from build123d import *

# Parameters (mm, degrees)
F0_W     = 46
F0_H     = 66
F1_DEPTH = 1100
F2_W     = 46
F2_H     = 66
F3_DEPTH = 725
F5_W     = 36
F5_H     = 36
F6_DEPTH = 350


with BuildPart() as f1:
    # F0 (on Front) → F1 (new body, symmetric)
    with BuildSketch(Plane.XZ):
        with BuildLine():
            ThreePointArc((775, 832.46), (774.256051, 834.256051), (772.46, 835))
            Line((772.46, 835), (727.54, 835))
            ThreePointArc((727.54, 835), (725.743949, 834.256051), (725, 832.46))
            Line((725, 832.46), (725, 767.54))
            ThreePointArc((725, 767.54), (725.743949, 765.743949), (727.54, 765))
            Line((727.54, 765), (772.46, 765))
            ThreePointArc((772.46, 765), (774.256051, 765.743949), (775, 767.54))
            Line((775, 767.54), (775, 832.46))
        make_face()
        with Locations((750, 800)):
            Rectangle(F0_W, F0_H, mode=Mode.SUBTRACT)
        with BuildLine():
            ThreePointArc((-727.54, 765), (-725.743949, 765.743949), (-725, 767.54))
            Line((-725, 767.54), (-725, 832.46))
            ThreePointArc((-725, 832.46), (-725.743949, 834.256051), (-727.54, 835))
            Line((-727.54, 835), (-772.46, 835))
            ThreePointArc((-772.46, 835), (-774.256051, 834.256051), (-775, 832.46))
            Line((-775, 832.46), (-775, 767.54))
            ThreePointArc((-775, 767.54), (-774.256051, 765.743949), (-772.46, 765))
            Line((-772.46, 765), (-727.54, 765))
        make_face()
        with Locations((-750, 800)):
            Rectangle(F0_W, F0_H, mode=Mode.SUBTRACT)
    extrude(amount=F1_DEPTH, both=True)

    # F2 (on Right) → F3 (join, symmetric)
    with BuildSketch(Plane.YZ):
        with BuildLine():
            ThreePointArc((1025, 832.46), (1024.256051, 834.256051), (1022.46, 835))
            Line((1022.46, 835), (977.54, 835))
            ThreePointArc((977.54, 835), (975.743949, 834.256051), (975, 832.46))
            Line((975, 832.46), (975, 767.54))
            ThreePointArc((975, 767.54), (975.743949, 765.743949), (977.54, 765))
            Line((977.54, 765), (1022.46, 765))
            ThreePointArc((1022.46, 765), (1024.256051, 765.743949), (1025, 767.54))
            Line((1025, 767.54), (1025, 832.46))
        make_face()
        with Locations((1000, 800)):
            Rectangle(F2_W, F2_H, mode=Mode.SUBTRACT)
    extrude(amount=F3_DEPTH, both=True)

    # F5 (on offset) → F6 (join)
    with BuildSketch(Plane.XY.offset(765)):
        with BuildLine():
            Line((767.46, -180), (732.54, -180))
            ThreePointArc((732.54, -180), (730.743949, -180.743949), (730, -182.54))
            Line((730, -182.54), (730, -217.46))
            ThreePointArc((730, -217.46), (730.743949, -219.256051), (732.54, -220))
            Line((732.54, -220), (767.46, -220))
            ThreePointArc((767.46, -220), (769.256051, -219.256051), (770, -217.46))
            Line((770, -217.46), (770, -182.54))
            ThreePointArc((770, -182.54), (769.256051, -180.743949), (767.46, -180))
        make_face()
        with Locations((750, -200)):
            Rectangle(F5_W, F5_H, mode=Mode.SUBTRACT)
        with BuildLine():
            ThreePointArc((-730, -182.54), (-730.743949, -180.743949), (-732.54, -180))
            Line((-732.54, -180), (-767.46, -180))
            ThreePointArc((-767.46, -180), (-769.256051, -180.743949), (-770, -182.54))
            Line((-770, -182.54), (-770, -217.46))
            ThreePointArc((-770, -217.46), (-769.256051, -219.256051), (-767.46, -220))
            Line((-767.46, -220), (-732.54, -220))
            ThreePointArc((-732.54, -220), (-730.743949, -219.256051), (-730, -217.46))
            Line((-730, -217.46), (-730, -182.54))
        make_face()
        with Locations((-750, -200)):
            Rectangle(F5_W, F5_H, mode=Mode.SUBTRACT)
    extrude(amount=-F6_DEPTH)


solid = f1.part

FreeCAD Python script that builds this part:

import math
import FreeCAD as App
import Part
import Sketcher
from FreeCAD import Vector

doc = App.newDocument("Part")
body = doc.addObject("PartDesign::Body", "Body")
body.AllowCompound = True

# Sketch on XZ plane
sketch1 = doc.addObject("Sketcher::SketchObject", "Sketch")
body.addObject(sketch1)
sketch1.AttachmentSupport = (doc.XZ_Plane, [""])
sketch1.MapMode = "FlatFace"
sketch1.addGeometry([
    Part.ArcOfCircle(Part.Circle(Vector(772.5, 832.5, 0), Vector(0, 0, 1), 2.5), math.radians(0), math.radians(90)),  # 0
    Part.LineSegment(Vector(772.5, 835, 0), Vector(727.5, 835, 0)),  # 1
    Part.ArcOfCircle(Part.Circle(Vector(727.5, 832.5, 0), Vector(0, 0, 1), 2.5), math.radians(90), math.radians(180)),  # 2
    Part.LineSegment(Vector(725, 832.5, 0), Vector(725, 767.5, 0)),  # 3
    Part.ArcOfCircle(Part.Circle(Vector(727.5, 767.5, 0), Vector(0, 0, 1), 2.5), math.radians(-180), math.radians(-90)),  # 4
    Part.LineSegment(Vector(727.5, 765, 0), Vector(772.5, 765, 0)),  # 5
    Part.ArcOfCircle(Part.Circle(Vector(772.5, 767.5, 0), Vector(0, 0, 1), 2.5), math.radians(-90), math.radians(0)),  # 6
    Part.LineSegment(Vector(775, 767.5, 0), Vector(775, 832.5, 0)),  # 7
    Part.LineSegment(Vector(773, 767, 0), Vector(727, 767, 0)),  # 8
    Part.LineSegment(Vector(727, 767, 0), Vector(727, 833, 0)),  # 9
    Part.LineSegment(Vector(727, 833, 0), Vector(773, 833, 0)),  # 10
    Part.LineSegment(Vector(773, 833, 0), Vector(773, 767, 0)),  # 11
    Part.ArcOfCircle(Part.Circle(Vector(-727.5, 767.5, 0), Vector(0, 0, 1), 2.5), math.radians(-90), math.radians(0)),  # 12
    Part.LineSegment(Vector(-725, 767.5, 0), Vector(-725, 832.5, 0)),  # 13
    Part.ArcOfCircle(Part.Circle(Vector(-727.5, 832.5, 0), Vector(0, 0, 1), 2.5), math.radians(0), math.radians(90)),  # 14
    Part.LineSegment(Vector(-727.5, 835, 0), Vector(-772.5, 835, 0)),  # 15
    Part.ArcOfCircle(Part.Circle(Vector(-772.5, 832.5, 0), Vector(0, 0, 1), 2.5), math.radians(90), math.radians(180)),  # 16
    Part.LineSegment(Vector(-775, 832.5, 0), Vector(-775, 767.5, 0)),  # 17
    Part.ArcOfCircle(Part.Circle(Vector(-772.5, 767.5, 0), Vector(0, 0, 1), 2.5), math.radians(-180), math.radians(-90)),  # 18
    Part.LineSegment(Vector(-772.5, 765, 0), Vector(-727.5, 765, 0)),  # 19
    Part.LineSegment(Vector(-727, 767, 0), Vector(-773, 767, 0)),  # 20
    Part.LineSegment(Vector(-773, 767, 0), Vector(-773, 833, 0)),  # 21
    Part.LineSegment(Vector(-773, 833, 0), Vector(-727, 833, 0)),  # 22
    Part.LineSegment(Vector(-727, 833, 0), Vector(-727, 767, 0)),  # 23
], False)
sketch1.addConstraint([
    Sketcher.Constraint("Tangent", 0, 2, 1, 1),
    Sketcher.Constraint("Tangent", 1, 2, 2, 1),
    Sketcher.Constraint("Tangent", 2, 2, 3, 1),
    Sketcher.Constraint("Tangent", 3, 2, 4, 1),
    Sketcher.Constraint("Tangent", 4, 2, 5, 1),
    Sketcher.Constraint("Tangent", 5, 2, 6, 1),
    Sketcher.Constraint("Tangent", 6, 2, 7, 1),
    Sketcher.Constraint("Tangent", 7, 2, 0, 1),
    Sketcher.Constraint("Coincident", 8, 2, 9, 1),
    Sketcher.Constraint("Coincident", 9, 2, 10, 1),
    Sketcher.Constraint("Coincident", 10, 2, 11, 1),
    Sketcher.Constraint("Coincident", 11, 2, 8, 1),
    Sketcher.Constraint("Tangent", 12, 2, 13, 1),
    Sketcher.Constraint("Tangent", 13, 2, 14, 1),
    Sketcher.Constraint("Tangent", 14, 2, 15, 1),
    Sketcher.Constraint("Tangent", 15, 2, 16, 1),
    Sketcher.Constraint("Tangent", 16, 2, 17, 1),
    Sketcher.Constraint("Tangent", 17, 2, 18, 1),
    Sketcher.Constraint("Tangent", 18, 2, 19, 1),
    Sketcher.Constraint("Tangent", 19, 2, 12, 1),
    Sketcher.Constraint("Coincident", 20, 2, 21, 1),
    Sketcher.Constraint("Coincident", 21, 2, 22, 1),
    Sketcher.Constraint("Coincident", 22, 2, 23, 1),
    Sketcher.Constraint("Coincident", 23, 2, 20, 1),
    Sketcher.Constraint("Horizontal", 1),
    Sketcher.Constraint("Vertical", 3),
    Sketcher.Constraint("Horizontal", 5),
    Sketcher.Constraint("Vertical", 7),
    Sketcher.Constraint("Horizontal", 8),
    Sketcher.Constraint("Vertical", 9),
    Sketcher.Constraint("Horizontal", 10),
    Sketcher.Constraint("Vertical", 11),
    Sketcher.Constraint("Vertical", 13),
    Sketcher.Constraint("Horizontal", 15),
    Sketcher.Constraint("Vertical", 17),
    Sketcher.Constraint("Horizontal", 19),
    Sketcher.Constraint("Horizontal", 20),
    Sketcher.Constraint("Vertical", 21),
    Sketcher.Constraint("Horizontal", 22),
    Sketcher.Constraint("Vertical", 23),
    Sketcher.Constraint("Equal", 0, 2),
    Sketcher.Constraint("Equal", 2, 4),
    Sketcher.Constraint("Equal", 4, 6),
    Sketcher.Constraint("Equal", 6, 12),
    Sketcher.Constraint("Equal", 12, 14),
    Sketcher.Constraint("Equal", 14, 16),
    Sketcher.Constraint("Equal", 16, 18),
    Sketcher.Constraint("Symmetric", 4, 3, 12, 3, -2),
    Sketcher.Constraint("Symmetric", 0, 3, 16, 3, -2),
    Sketcher.Constraint("Symmetric", 11, 2, 20, 2, -2),
    Sketcher.Constraint("Symmetric", 9, 2, 22, 2, -2),
    Sketcher.Constraint("DistanceX", 8, 2, 8, 1, 46.0),
    Sketcher.Constraint("DistanceY", 9, 1, 9, 2, 66.0),
    Sketcher.Constraint("Radius", 0, 2.540001),
    Sketcher.Constraint("DistanceY", -1, 1, 0, 2, 835.0),
    Sketcher.Constraint("DistanceX", -1, 1, 2, 2, 725.0),
    Sketcher.Constraint("DistanceY", -1, 1, 4, 2, 765.0),
    Sketcher.Constraint("DistanceX", -1, 1, 6, 2, 775.0),
    Sketcher.Constraint("DistanceX", -1, 1, 8, 2, 727.0),
    Sketcher.Constraint("DistanceY", -1, 1, 8, 2, 767.0),
])
pad1 = doc.addObject("PartDesign::Pad", "Pad")
body.addObject(pad1)
pad1.Profile = sketch1
pad1.Length = 2200
pad1.Midplane = True

# Sketch on YZ plane
sketch2 = doc.addObject("Sketcher::SketchObject", "Sketch001")
body.addObject(sketch2)
sketch2.AttachmentSupport = (doc.YZ_Plane, [""])
sketch2.MapMode = "FlatFace"
sketch2.addGeometry([
    Part.ArcOfCircle(Part.Circle(Vector(1022.5, 832.5, 0), Vector(0, 0, 1), 2.5), math.radians(0), math.radians(90)),  # 0
    Part.LineSegment(Vector(1022.5, 835, 0), Vector(977.5, 835, 0)),  # 1
    Part.ArcOfCircle(Part.Circle(Vector(977.5, 832.5, 0), Vector(0, 0, 1), 2.5), math.radians(90), math.radians(180)),  # 2
    Part.LineSegment(Vector(975, 832.5, 0), Vector(975, 767.5, 0)),  # 3
    Part.ArcOfCircle(Part.Circle(Vector(977.5, 767.5, 0), Vector(0, 0, 1), 2.5), math.radians(-180), math.radians(-90)),  # 4
    Part.LineSegment(Vector(977.5, 765, 0), Vector(1022.5, 765, 0)),  # 5
    Part.ArcOfCircle(Part.Circle(Vector(1022.5, 767.5, 0), Vector(0, 0, 1), 2.5), math.radians(-90), math.radians(0)),  # 6
    Part.LineSegment(Vector(1025, 767.5, 0), Vector(1025, 832.5, 0)),  # 7
    Part.LineSegment(Vector(1023, 767, 0), Vector(977, 767, 0)),  # 8
    Part.LineSegment(Vector(977, 767, 0), Vector(977, 833, 0)),  # 9
    Part.LineSegment(Vector(977, 833, 0), Vector(1023, 833, 0)),  # 10
    Part.LineSegment(Vector(1023, 833, 0), Vector(1023, 767, 0)),  # 11
], False)
sketch2.addConstraint([
    Sketcher.Constraint("Tangent", 0, 2, 1, 1),
    Sketcher.Constraint("Tangent", 1, 2, 2, 1),
    Sketcher.Constraint("Tangent", 2, 2, 3, 1),
    Sketcher.Constraint("Tangent", 3, 2, 4, 1),
    Sketcher.Constraint("Tangent", 4, 2, 5, 1),
    Sketcher.Constraint("Tangent", 5, 2, 6, 1),
    Sketcher.Constraint("Tangent", 6, 2, 7, 1),
    Sketcher.Constraint("Tangent", 7, 2, 0, 1),
    Sketcher.Constraint("Coincident", 8, 2, 9, 1),
    Sketcher.Constraint("Coincident", 9, 2, 10, 1),
    Sketcher.Constraint("Coincident", 10, 2, 11, 1),
    Sketcher.Constraint("Coincident", 11, 2, 8, 1),
    Sketcher.Constraint("Horizontal", 1),
    Sketcher.Constraint("Vertical", 3),
    Sketcher.Constraint("Horizontal", 5),
    Sketcher.Constraint("Vertical", 7),
    Sketcher.Constraint("Horizontal", 8),
    Sketcher.Constraint("Vertical", 9),
    Sketcher.Constraint("Horizontal", 10),
    Sketcher.Constraint("Vertical", 11),
    Sketcher.Constraint("Equal", 0, 2),
    Sketcher.Constraint("Equal", 2, 4),
    Sketcher.Constraint("Equal", 4, 6),
    Sketcher.Constraint("DistanceX", 8, 2, 8, 1, 46.0),
    Sketcher.Constraint("DistanceY", 9, 1, 9, 2, 66.0),
    Sketcher.Constraint("Radius", 0, 2.540001),
    Sketcher.Constraint("DistanceY", -1, 1, 0, 2, 835.0),
    Sketcher.Constraint("DistanceX", -1, 1, 2, 2, 975.0),
    Sketcher.Constraint("DistanceY", -1, 1, 4, 2, 765.0),
    Sketcher.Constraint("DistanceX", -1, 1, 6, 2, 1025.0),
    Sketcher.Constraint("DistanceX", -1, 1, 8, 2, 977.0),
    Sketcher.Constraint("DistanceY", -1, 1, 8, 2, 767.0),
])
pad2 = doc.addObject("PartDesign::Pad", "Pad001")
body.addObject(pad2)
pad2.Profile = sketch2
pad2.Length = 1450
pad2.Midplane = True

# Sketch on XY plane
sketch3 = doc.addObject("Sketcher::SketchObject", "Sketch002")
body.addObject(sketch3)
sketch3.AttachmentSupport = (doc.XY_Plane, [""])
sketch3.MapMode = "FlatFace"
sketch3.AttachmentOffset = App.Placement(Vector(0, 0, 765), App.Rotation())
sketch3.addGeometry([
    Part.LineSegment(Vector(767.5, -180, 0), Vector(732.5, -180, 0)),  # 0
    Part.ArcOfCircle(Part.Circle(Vector(732.5, -182.5, 0), Vector(0, 0, 1), 2.5), math.radians(90), math.radians(180)),  # 1
    Part.LineSegment(Vector(730, -182.5, 0), Vector(730, -217.5, 0)),  # 2
    Part.ArcOfCircle(Part.Circle(Vector(732.5, -217.5, 0), Vector(0, 0, 1), 2.5), math.radians(-180), math.radians(-90)),  # 3
    Part.LineSegment(Vector(732.5, -220, 0), Vector(767.5, -220, 0)),  # 4
    Part.ArcOfCircle(Part.Circle(Vector(767.5, -217.5, 0), Vector(0, 0, 1), 2.5), math.radians(-90), math.radians(0)),  # 5
    Part.LineSegment(Vector(770, -217.5, 0), Vector(770, -182.5, 0)),  # 6
    Part.ArcOfCircle(Part.Circle(Vector(767.5, -182.5, 0), Vector(0, 0, 1), 2.5), math.radians(0), math.radians(90)),  # 7
    Part.LineSegment(Vector(768, -218, 0), Vector(732, -218, 0)),  # 8
    Part.LineSegment(Vector(732, -218, 0), Vector(732, -182, 0)),  # 9
    Part.LineSegment(Vector(732, -182, 0), Vector(768, -182, 0)),  # 10
    Part.LineSegment(Vector(768, -182, 0), Vector(768, -218, 0)),  # 11
    Part.ArcOfCircle(Part.Circle(Vector(-732.5, -182.5, 0), Vector(0, 0, 1), 2.5), math.radians(0), math.radians(90)),  # 12
    Part.LineSegment(Vector(-732.5, -180, 0), Vector(-767.5, -180, 0)),  # 13
    Part.ArcOfCircle(Part.Circle(Vector(-767.5, -182.5, 0), Vector(0, 0, 1), 2.5), math.radians(90), math.radians(180)),  # 14
    Part.LineSegment(Vector(-770, -182.5, 0), Vector(-770, -217.5, 0)),  # 15
    Part.ArcOfCircle(Part.Circle(Vector(-767.5, -217.5, 0), Vector(0, 0, 1), 2.5), math.radians(-180), math.radians(-90)),  # 16
    Part.LineSegment(Vector(-767.5, -220, 0), Vector(-732.5, -220, 0)),  # 17
    Part.ArcOfCircle(Part.Circle(Vector(-732.5, -217.5, 0), Vector(0, 0, 1), 2.5), math.radians(-90), math.radians(0)),  # 18
    Part.LineSegment(Vector(-730, -217.5, 0), Vector(-730, -182.5, 0)),  # 19
    Part.LineSegment(Vector(-732, -218, 0), Vector(-768, -218, 0)),  # 20
    Part.LineSegment(Vector(-768, -218, 0), Vector(-768, -182, 0)),  # 21
    Part.LineSegment(Vector(-768, -182, 0), Vector(-732, -182, 0)),  # 22
    Part.LineSegment(Vector(-732, -182, 0), Vector(-732, -218, 0)),  # 23
], False)
sketch3.addConstraint([
    Sketcher.Constraint("Tangent", 0, 2, 1, 1),
    Sketcher.Constraint("Tangent", 1, 2, 2, 1),
    Sketcher.Constraint("Tangent", 2, 2, 3, 1),
    Sketcher.Constraint("Tangent", 3, 2, 4, 1),
    Sketcher.Constraint("Tangent", 4, 2, 5, 1),
    Sketcher.Constraint("Tangent", 5, 2, 6, 1),
    Sketcher.Constraint("Tangent", 6, 2, 7, 1),
    Sketcher.Constraint("Tangent", 7, 2, 0, 1),
    Sketcher.Constraint("Coincident", 8, 2, 9, 1),
    Sketcher.Constraint("Coincident", 9, 2, 10, 1),
    Sketcher.Constraint("Coincident", 10, 2, 11, 1),
    Sketcher.Constraint("Coincident", 11, 2, 8, 1),
    Sketcher.Constraint("Tangent", 12, 2, 13, 1),
    Sketcher.Constraint("Tangent", 13, 2, 14, 1),
    Sketcher.Constraint("Tangent", 14, 2, 15, 1),
    Sketcher.Constraint("Tangent", 15, 2, 16, 1),
    Sketcher.Constraint("Tangent", 16, 2, 17, 1),
    Sketcher.Constraint("Tangent", 17, 2, 18, 1),
    Sketcher.Constraint("Tangent", 18, 2, 19, 1),
    Sketcher.Constraint("Tangent", 19, 2, 12, 1),
    Sketcher.Constraint("Coincident", 20, 2, 21, 1),
    Sketcher.Constraint("Coincident", 21, 2, 22, 1),
    Sketcher.Constraint("Coincident", 22, 2, 23, 1),
    Sketcher.Constraint("Coincident", 23, 2, 20, 1),
    Sketcher.Constraint("Horizontal", 0),
    Sketcher.Constraint("Vertical", 2),
    Sketcher.Constraint("Horizontal", 4),
    Sketcher.Constraint("Vertical", 6),
    Sketcher.Constraint("Horizontal", 8),
    Sketcher.Constraint("Vertical", 9),
    Sketcher.Constraint("Horizontal", 10),
    Sketcher.Constraint("Vertical", 11),
    Sketcher.Constraint("Horizontal", 13),
    Sketcher.Constraint("Vertical", 15),
    Sketcher.Constraint("Horizontal", 17),
    Sketcher.Constraint("Vertical", 19),
    Sketcher.Constraint("Horizontal", 20),
    Sketcher.Constraint("Vertical", 21),
    Sketcher.Constraint("Horizontal", 22),
    Sketcher.Constraint("Vertical", 23),
    Sketcher.Constraint("Equal", 1, 3),
    Sketcher.Constraint("Equal", 3, 5),
    Sketcher.Constraint("Equal", 5, 7),
    Sketcher.Constraint("Equal", 7, 12),
    Sketcher.Constraint("Equal", 12, 14),
    Sketcher.Constraint("Equal", 14, 16),
    Sketcher.Constraint("Equal", 16, 18),
    Sketcher.Constraint("Symmetric", 1, 3, 12, 3, -2),
    Sketcher.Constraint("Symmetric", 5, 3, 16, 3, -2),
    Sketcher.Constraint("Symmetric", 11, 2, 20, 2, -2),
    Sketcher.Constraint("Symmetric", 9, 2, 22, 2, -2),
    Sketcher.Constraint("Equal", 17, 2),
    Sketcher.Constraint("Equal", 22, 9),
    Sketcher.Constraint("DistanceX", 8, 2, 8, 1, 36.0),
    Sketcher.Constraint("Radius", 1, 2.540001),
    Sketcher.Constraint("DistanceY", 0, 2, -1, 1, 180.0),
    Sketcher.Constraint("DistanceX", -1, 1, 1, 2, 730.0),
    Sketcher.Constraint("DistanceY", 3, 2, -1, 1, 220.0),
    Sketcher.Constraint("DistanceX", -1, 1, 8, 2, 732.0),
    Sketcher.Constraint("DistanceY", 8, 2, -1, 1, 218.0),
])
pad3 = doc.addObject("PartDesign::Pad", "Pad002")
body.addObject(pad3)
pad3.Profile = sketch3
pad3.Length = 350
pad3.Reversed = True

doc.recompute()
